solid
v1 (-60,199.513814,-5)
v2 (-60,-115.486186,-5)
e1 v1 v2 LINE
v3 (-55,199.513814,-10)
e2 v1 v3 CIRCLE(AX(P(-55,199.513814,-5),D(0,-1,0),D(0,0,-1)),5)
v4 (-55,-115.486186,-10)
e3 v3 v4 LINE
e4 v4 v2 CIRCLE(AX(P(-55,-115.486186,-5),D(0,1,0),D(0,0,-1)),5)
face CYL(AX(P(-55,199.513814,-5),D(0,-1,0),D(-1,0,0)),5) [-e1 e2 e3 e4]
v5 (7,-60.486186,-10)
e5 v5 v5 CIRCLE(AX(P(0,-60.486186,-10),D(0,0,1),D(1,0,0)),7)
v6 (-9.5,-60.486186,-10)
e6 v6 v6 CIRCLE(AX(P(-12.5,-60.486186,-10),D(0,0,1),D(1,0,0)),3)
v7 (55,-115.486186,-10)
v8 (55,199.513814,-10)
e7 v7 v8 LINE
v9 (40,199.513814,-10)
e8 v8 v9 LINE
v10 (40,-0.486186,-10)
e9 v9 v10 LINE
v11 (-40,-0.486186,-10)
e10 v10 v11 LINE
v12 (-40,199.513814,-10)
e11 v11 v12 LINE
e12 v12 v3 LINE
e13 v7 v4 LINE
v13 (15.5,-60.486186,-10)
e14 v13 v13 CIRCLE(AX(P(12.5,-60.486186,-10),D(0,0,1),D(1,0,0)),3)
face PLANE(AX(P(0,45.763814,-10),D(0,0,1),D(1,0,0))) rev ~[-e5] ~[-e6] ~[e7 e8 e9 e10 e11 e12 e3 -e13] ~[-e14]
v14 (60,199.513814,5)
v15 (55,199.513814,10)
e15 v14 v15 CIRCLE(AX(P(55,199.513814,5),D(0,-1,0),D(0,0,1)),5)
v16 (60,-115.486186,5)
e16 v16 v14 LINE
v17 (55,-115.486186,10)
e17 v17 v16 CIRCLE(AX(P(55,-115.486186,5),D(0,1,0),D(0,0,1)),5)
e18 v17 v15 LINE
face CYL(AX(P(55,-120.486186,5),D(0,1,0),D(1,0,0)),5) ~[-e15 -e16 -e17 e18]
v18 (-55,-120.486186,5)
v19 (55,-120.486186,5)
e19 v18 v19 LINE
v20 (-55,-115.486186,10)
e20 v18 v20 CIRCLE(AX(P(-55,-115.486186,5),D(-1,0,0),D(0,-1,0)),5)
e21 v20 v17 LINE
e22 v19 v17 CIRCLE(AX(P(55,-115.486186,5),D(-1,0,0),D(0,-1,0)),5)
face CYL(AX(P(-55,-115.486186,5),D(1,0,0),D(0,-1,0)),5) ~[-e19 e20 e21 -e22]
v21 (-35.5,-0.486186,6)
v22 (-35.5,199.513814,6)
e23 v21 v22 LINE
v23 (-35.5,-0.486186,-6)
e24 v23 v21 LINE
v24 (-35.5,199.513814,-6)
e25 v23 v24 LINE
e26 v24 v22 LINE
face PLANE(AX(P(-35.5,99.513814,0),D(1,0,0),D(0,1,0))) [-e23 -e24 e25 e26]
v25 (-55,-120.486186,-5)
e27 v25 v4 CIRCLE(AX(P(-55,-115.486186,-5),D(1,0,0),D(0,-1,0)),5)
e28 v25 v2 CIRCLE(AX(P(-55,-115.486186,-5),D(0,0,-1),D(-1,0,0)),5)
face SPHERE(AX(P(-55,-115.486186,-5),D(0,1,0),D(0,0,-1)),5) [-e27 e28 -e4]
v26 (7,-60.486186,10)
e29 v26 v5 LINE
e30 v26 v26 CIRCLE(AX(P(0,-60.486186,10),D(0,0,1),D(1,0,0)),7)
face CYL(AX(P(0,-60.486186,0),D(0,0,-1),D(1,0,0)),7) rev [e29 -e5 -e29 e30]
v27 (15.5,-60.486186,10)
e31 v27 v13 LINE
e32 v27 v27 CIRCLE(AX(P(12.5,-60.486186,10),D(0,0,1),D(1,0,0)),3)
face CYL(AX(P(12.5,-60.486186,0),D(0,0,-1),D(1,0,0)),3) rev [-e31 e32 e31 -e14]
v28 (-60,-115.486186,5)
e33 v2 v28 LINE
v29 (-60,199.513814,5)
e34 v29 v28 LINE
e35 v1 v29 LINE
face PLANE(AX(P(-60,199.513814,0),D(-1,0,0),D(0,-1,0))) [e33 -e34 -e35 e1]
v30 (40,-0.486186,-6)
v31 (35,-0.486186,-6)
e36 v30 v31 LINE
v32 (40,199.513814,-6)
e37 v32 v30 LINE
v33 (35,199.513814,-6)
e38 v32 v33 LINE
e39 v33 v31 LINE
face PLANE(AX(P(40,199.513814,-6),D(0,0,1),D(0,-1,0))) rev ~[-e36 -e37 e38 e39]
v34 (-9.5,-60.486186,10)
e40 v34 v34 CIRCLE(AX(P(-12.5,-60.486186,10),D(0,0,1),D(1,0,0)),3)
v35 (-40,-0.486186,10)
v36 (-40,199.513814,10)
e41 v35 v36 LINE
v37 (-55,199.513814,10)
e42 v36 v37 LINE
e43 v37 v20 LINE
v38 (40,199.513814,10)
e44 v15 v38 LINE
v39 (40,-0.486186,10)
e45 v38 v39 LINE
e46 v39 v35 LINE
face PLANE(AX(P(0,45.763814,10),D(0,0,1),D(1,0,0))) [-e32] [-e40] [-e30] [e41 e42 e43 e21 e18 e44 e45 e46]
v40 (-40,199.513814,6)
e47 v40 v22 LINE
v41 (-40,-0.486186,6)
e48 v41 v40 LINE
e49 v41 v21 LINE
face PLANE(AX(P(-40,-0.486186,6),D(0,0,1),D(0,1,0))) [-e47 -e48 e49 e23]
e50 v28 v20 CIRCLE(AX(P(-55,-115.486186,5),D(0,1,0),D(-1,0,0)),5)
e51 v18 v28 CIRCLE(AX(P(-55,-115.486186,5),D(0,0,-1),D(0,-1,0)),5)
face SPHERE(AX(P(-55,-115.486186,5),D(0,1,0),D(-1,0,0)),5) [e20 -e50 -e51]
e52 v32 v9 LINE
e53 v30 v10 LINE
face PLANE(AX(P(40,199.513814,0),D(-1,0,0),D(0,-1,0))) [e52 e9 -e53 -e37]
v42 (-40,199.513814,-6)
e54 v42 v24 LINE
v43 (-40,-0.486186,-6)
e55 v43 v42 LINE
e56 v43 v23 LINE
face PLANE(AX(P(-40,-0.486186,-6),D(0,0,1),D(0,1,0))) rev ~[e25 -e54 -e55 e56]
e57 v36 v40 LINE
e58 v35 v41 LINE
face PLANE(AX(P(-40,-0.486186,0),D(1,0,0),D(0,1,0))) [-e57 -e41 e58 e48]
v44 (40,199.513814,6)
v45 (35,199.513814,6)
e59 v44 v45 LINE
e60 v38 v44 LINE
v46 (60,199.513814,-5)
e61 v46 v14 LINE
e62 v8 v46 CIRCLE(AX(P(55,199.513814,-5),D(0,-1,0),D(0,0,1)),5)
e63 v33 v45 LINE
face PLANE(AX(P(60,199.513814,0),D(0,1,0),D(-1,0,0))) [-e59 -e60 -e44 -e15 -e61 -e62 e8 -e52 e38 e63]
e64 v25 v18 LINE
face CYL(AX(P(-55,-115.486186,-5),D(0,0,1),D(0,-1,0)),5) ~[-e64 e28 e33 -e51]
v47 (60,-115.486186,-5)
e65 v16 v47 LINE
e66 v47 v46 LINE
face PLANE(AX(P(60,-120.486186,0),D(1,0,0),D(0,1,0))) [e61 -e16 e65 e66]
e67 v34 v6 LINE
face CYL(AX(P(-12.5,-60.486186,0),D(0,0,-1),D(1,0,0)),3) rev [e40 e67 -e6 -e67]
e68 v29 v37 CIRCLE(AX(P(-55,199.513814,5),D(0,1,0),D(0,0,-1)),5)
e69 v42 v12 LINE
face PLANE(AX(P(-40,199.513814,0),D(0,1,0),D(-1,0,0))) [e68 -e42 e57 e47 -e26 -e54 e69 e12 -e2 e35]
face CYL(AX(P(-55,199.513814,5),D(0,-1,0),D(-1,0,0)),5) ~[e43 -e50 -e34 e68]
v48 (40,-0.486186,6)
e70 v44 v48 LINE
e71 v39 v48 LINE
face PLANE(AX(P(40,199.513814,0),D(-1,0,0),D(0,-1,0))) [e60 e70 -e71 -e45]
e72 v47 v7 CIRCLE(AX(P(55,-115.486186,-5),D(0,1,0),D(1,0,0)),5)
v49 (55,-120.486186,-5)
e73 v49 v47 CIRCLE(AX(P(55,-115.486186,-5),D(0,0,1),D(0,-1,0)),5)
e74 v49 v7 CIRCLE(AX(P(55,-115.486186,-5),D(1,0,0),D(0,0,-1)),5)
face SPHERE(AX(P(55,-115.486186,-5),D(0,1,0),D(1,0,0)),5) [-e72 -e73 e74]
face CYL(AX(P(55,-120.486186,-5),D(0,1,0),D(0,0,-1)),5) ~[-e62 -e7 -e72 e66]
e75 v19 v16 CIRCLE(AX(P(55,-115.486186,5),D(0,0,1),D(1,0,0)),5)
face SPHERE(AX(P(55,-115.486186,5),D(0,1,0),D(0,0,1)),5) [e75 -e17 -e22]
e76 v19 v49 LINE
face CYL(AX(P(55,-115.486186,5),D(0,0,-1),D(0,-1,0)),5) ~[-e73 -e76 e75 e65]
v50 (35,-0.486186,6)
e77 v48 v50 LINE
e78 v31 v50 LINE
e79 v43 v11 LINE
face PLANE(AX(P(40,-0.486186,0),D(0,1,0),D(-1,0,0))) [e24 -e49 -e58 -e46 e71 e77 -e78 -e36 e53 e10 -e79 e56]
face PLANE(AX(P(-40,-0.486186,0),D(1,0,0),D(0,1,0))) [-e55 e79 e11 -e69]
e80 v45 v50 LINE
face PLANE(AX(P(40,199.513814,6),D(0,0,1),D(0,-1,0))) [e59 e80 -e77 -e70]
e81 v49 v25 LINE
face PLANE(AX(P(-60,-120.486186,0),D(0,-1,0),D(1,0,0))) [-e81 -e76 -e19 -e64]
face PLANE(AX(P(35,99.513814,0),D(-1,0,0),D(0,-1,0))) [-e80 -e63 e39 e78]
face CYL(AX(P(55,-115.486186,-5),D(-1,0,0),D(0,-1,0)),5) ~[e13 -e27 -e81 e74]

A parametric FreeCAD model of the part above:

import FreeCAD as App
import Part
import Sketcher

V = App.Vector


def edges_at(feature, points):
    """Names of the edges that pass closest to the given points."""
    edges = feature.Shape.Edges
    near = lambda p: min(range(len(edges)), key=lambda i: edges[i].distToShape(Part.Vertex(*p))[0])
    return sorted({f"Edge{near(p) + 1}" for p in points})


def add_polygon(sketch, points):
    """Adds a closed chain of lines whose ends are joined by coincident constraints."""
    first, n = sketch.GeometryCount, len(points)
    for a, b in zip(points, points[1:] + points[:1]):
        sketch.addGeometry(Part.LineSegment(App.Vector(*a, 0), App.Vector(*b, 0)), False)
    for i in range(n):
        sketch.addConstraint(Sketcher.Constraint("Coincident", first + i, 2, first + (i + 1) % n, 1))

doc = App.newDocument("Part")
body = doc.addObject("PartDesign::Body", "Body")

sketch1 = body.newObject("Sketcher::SketchObject", "Sketch")
sketch1.AttachmentSupport = (doc.getObject("XY_Plane"), [""])
sketch1.MapMode = "FlatFace"
add_polygon(sketch1, [(-40, 199.5), (-60, 199.5), (-60, -120.5), (60, -120.5), (60, 199.5), (40, 199.5), (40, -0.5), (-40, -0.5)])
sketch1.addGeometry(Part.Circle(V(-12.5, -60.5, 0), V(0, 0, 1), 3), False)
sketch1.addGeometry(Part.Circle(V(0, -60.5, 0), V(0, 0, 1), 7), False)
sketch1.addGeometry(Part.Circle(V(12.5, -60.5, 0), V(0, 0, 1), 3), False)
sketch1.addConstraint(Sketcher.Constraint("Horizontal", 0))
sketch1.addConstraint(Sketcher.Constraint("Vertical", 1))
sketch1.addConstraint(Sketcher.Constraint("Horizontal", 2))
sketch1.addConstraint(Sketcher.Constraint("Vertical", 3))
sketch1.addConstraint(Sketcher.Constraint("Horizontal", 4))
sketch1.addConstraint(Sketcher.Constraint("Vertical", 5))
sketch1.addConstraint(Sketcher.Constraint("Horizontal", 6))
sketch1.addConstraint(Sketcher.Constraint("Vertical", 7))
sketch1.addConstraint(Sketcher.Constraint("Equal", 8, 10))
sketch1.addConstraint(Sketcher.Constraint("Symmetric", 8, 3, 10, 3, -2))
sketch1.addConstraint(Sketcher.Constraint("Symmetric", 0, 2, 3, 2, -2))
sketch1.addConstraint(Sketcher.Constraint("PointOnObject", 9, 3, -2))
sketch1.addConstraint(Sketcher.Constraint("Horizontal", 8, 3, 9, 3))
sketch1.addConstraint(Sketcher.Constraint("Equal", 0, 4))
sketch1.addConstraint(Sketcher.Constraint("Diameter", 8, 6.0))
sketch1.addConstraint(Sketcher.Constraint("Diameter", 9, 14.0))
sketch1.addConstraint(Sketcher.Constraint("DistanceX", 0, 2, 0, 1, 20.0))
sketch1.addConstraint(Sketcher.Constraint("DistanceX", 2, 1, 2, 2, 120.0))
sketch1.addConstraint(Sketcher.Constraint("DistanceY", 1, 2, 1, 1, 320.0))
sketch1.addConstraint(Sketcher.Constraint("DistanceY", 5, 2, 5, 1, 200.0))
sketch1.addConstraint(Sketcher.Constraint("DistanceX", 8, 3, 10, 3, 25.0))
sketch1.addConstraint(Sketcher.Constraint("DistanceY", 8, 3, 0, 2, 260.0))
sketch1.addConstraint(Sketcher.Constraint("DistanceY", 8, 3, -1, 1, 60.486186))
pad1 = body.newObject("PartDesign::Pad", "Pad")
pad1.Profile = sketch1
pad1.Length = 20
pad1.Midplane = True

sketch2 = body.newObject("Sketcher::SketchObject", "Sketch001")
sketch2.AttachmentSupport = (doc.getObject("YZ_Plane"), [""])
sketch2.MapMode = "FlatFace"
sketch2.AttachmentOffset = App.Placement(V(0, 0, -40), App.Rotation())
add_polygon(sketch2, [(0, 6), (0, -6), (200, -6), (200, 6)])
sketch2.addConstraint(Sketcher.Constraint("Vertical", 0))
sketch2.addConstraint(Sketcher.Constraint("Horizontal", 1))
sketch2.addConstraint(Sketcher.Constraint("Vertical", 2))
sketch2.addConstraint(Sketcher.Constraint("Horizontal", 3))
sketch2.addConstraint(Sketcher.Constraint("DistanceX", 1, 1, 1, 2, 200.0))
sketch2.addConstraint(Sketcher.Constraint("DistanceY", 0, 2, 0, 1, 12.0))
sketch2.addConstraint(Sketcher.Constraint("DistanceY", 0, 2, -1, 1, 6.0))
sketch2.addConstraint(Sketcher.Constraint("DistanceX", 0, 2, -1, 1, 0.486186))
pad2 = body.newObject("PartDesign::Pad", "Pad001")
pad2.Profile = sketch2
pad2.Length = 4.5

sketch3 = body.newObject("Sketcher::SketchObject", "Sketch002")
sketch3.AttachmentSupport = (doc.getObject("YZ_Plane"), [""])
sketch3.MapMode = "FlatFace"
sketch3.AttachmentOffset = App.Placement(V(0, 0, 40), App.Rotation())
add_polygon(sketch3, [(200, 6), (200, -6), (0, -6), (0, 6)])
sketch3.addConstraint(Sketcher.Constraint("Vertical", 0))
sketch3.addConstraint(Sketcher.Constraint("Horizontal", 1))
sketch3.addConstraint(Sketcher.Constraint("Vertical", 2))
sketch3.addConstraint(Sketcher.Constraint("Horizontal", 3))
sketch3.addConstraint(Sketcher.Constraint("DistanceX", 1, 2, 1, 1, 200.0))
sketch3.addConstraint(Sketcher.Constraint("DistanceY", 0, 2, 0, 1, 12.0))
sketch3.addConstraint(Sketcher.Constraint("DistanceY", 0, 2, -1, 1, 6.0))
sketch3.addConstraint(Sketcher.Constraint("DistanceX", -1, 1, 0, 2, 199.513814))
pad3 = body.newObject("PartDesign::Pad", "Pad002")
pad3.Profile = sketch3
pad3.Length = 5
pad3.Reversed = True
doc.recompute()

fillet = body.newObject("PartDesign::Fillet", "Fillet")
fillet.Base = (pad3, edges_at(pad3, [(-60, 39.514, 10)]))
fillet.Radius = 5
doc.recompute()

fillet2 = body.newObject("PartDesign::Fillet", "Fillet001")
fillet2.Base = (fillet, edges_at(fillet, [(-60, 39.514, -10)]))
fillet2.Radius = 5
doc.recompute()

fillet3 = body.newObject("PartDesign::Fillet", "Fillet002")
fillet3.Base = (fillet2, edges_at(fillet2, [(60, 39.514, -10)]))
fillet3.Radius = 5
doc.recompute()

fillet4 = body.newObject("PartDesign::Fillet", "Fillet003")
fillet4.Base = (fillet3, edges_at(fillet3, [(60, 39.514, 10)]))
fillet4.Radius = 5
doc.recompute()

fillet5 = body.newObject("PartDesign::Fillet", "Fillet004")
fillet5.Base = (fillet4, edges_at(fillet4, [(0, -120.486, 10)]))
fillet5.Radius = 5

doc.recompute()
